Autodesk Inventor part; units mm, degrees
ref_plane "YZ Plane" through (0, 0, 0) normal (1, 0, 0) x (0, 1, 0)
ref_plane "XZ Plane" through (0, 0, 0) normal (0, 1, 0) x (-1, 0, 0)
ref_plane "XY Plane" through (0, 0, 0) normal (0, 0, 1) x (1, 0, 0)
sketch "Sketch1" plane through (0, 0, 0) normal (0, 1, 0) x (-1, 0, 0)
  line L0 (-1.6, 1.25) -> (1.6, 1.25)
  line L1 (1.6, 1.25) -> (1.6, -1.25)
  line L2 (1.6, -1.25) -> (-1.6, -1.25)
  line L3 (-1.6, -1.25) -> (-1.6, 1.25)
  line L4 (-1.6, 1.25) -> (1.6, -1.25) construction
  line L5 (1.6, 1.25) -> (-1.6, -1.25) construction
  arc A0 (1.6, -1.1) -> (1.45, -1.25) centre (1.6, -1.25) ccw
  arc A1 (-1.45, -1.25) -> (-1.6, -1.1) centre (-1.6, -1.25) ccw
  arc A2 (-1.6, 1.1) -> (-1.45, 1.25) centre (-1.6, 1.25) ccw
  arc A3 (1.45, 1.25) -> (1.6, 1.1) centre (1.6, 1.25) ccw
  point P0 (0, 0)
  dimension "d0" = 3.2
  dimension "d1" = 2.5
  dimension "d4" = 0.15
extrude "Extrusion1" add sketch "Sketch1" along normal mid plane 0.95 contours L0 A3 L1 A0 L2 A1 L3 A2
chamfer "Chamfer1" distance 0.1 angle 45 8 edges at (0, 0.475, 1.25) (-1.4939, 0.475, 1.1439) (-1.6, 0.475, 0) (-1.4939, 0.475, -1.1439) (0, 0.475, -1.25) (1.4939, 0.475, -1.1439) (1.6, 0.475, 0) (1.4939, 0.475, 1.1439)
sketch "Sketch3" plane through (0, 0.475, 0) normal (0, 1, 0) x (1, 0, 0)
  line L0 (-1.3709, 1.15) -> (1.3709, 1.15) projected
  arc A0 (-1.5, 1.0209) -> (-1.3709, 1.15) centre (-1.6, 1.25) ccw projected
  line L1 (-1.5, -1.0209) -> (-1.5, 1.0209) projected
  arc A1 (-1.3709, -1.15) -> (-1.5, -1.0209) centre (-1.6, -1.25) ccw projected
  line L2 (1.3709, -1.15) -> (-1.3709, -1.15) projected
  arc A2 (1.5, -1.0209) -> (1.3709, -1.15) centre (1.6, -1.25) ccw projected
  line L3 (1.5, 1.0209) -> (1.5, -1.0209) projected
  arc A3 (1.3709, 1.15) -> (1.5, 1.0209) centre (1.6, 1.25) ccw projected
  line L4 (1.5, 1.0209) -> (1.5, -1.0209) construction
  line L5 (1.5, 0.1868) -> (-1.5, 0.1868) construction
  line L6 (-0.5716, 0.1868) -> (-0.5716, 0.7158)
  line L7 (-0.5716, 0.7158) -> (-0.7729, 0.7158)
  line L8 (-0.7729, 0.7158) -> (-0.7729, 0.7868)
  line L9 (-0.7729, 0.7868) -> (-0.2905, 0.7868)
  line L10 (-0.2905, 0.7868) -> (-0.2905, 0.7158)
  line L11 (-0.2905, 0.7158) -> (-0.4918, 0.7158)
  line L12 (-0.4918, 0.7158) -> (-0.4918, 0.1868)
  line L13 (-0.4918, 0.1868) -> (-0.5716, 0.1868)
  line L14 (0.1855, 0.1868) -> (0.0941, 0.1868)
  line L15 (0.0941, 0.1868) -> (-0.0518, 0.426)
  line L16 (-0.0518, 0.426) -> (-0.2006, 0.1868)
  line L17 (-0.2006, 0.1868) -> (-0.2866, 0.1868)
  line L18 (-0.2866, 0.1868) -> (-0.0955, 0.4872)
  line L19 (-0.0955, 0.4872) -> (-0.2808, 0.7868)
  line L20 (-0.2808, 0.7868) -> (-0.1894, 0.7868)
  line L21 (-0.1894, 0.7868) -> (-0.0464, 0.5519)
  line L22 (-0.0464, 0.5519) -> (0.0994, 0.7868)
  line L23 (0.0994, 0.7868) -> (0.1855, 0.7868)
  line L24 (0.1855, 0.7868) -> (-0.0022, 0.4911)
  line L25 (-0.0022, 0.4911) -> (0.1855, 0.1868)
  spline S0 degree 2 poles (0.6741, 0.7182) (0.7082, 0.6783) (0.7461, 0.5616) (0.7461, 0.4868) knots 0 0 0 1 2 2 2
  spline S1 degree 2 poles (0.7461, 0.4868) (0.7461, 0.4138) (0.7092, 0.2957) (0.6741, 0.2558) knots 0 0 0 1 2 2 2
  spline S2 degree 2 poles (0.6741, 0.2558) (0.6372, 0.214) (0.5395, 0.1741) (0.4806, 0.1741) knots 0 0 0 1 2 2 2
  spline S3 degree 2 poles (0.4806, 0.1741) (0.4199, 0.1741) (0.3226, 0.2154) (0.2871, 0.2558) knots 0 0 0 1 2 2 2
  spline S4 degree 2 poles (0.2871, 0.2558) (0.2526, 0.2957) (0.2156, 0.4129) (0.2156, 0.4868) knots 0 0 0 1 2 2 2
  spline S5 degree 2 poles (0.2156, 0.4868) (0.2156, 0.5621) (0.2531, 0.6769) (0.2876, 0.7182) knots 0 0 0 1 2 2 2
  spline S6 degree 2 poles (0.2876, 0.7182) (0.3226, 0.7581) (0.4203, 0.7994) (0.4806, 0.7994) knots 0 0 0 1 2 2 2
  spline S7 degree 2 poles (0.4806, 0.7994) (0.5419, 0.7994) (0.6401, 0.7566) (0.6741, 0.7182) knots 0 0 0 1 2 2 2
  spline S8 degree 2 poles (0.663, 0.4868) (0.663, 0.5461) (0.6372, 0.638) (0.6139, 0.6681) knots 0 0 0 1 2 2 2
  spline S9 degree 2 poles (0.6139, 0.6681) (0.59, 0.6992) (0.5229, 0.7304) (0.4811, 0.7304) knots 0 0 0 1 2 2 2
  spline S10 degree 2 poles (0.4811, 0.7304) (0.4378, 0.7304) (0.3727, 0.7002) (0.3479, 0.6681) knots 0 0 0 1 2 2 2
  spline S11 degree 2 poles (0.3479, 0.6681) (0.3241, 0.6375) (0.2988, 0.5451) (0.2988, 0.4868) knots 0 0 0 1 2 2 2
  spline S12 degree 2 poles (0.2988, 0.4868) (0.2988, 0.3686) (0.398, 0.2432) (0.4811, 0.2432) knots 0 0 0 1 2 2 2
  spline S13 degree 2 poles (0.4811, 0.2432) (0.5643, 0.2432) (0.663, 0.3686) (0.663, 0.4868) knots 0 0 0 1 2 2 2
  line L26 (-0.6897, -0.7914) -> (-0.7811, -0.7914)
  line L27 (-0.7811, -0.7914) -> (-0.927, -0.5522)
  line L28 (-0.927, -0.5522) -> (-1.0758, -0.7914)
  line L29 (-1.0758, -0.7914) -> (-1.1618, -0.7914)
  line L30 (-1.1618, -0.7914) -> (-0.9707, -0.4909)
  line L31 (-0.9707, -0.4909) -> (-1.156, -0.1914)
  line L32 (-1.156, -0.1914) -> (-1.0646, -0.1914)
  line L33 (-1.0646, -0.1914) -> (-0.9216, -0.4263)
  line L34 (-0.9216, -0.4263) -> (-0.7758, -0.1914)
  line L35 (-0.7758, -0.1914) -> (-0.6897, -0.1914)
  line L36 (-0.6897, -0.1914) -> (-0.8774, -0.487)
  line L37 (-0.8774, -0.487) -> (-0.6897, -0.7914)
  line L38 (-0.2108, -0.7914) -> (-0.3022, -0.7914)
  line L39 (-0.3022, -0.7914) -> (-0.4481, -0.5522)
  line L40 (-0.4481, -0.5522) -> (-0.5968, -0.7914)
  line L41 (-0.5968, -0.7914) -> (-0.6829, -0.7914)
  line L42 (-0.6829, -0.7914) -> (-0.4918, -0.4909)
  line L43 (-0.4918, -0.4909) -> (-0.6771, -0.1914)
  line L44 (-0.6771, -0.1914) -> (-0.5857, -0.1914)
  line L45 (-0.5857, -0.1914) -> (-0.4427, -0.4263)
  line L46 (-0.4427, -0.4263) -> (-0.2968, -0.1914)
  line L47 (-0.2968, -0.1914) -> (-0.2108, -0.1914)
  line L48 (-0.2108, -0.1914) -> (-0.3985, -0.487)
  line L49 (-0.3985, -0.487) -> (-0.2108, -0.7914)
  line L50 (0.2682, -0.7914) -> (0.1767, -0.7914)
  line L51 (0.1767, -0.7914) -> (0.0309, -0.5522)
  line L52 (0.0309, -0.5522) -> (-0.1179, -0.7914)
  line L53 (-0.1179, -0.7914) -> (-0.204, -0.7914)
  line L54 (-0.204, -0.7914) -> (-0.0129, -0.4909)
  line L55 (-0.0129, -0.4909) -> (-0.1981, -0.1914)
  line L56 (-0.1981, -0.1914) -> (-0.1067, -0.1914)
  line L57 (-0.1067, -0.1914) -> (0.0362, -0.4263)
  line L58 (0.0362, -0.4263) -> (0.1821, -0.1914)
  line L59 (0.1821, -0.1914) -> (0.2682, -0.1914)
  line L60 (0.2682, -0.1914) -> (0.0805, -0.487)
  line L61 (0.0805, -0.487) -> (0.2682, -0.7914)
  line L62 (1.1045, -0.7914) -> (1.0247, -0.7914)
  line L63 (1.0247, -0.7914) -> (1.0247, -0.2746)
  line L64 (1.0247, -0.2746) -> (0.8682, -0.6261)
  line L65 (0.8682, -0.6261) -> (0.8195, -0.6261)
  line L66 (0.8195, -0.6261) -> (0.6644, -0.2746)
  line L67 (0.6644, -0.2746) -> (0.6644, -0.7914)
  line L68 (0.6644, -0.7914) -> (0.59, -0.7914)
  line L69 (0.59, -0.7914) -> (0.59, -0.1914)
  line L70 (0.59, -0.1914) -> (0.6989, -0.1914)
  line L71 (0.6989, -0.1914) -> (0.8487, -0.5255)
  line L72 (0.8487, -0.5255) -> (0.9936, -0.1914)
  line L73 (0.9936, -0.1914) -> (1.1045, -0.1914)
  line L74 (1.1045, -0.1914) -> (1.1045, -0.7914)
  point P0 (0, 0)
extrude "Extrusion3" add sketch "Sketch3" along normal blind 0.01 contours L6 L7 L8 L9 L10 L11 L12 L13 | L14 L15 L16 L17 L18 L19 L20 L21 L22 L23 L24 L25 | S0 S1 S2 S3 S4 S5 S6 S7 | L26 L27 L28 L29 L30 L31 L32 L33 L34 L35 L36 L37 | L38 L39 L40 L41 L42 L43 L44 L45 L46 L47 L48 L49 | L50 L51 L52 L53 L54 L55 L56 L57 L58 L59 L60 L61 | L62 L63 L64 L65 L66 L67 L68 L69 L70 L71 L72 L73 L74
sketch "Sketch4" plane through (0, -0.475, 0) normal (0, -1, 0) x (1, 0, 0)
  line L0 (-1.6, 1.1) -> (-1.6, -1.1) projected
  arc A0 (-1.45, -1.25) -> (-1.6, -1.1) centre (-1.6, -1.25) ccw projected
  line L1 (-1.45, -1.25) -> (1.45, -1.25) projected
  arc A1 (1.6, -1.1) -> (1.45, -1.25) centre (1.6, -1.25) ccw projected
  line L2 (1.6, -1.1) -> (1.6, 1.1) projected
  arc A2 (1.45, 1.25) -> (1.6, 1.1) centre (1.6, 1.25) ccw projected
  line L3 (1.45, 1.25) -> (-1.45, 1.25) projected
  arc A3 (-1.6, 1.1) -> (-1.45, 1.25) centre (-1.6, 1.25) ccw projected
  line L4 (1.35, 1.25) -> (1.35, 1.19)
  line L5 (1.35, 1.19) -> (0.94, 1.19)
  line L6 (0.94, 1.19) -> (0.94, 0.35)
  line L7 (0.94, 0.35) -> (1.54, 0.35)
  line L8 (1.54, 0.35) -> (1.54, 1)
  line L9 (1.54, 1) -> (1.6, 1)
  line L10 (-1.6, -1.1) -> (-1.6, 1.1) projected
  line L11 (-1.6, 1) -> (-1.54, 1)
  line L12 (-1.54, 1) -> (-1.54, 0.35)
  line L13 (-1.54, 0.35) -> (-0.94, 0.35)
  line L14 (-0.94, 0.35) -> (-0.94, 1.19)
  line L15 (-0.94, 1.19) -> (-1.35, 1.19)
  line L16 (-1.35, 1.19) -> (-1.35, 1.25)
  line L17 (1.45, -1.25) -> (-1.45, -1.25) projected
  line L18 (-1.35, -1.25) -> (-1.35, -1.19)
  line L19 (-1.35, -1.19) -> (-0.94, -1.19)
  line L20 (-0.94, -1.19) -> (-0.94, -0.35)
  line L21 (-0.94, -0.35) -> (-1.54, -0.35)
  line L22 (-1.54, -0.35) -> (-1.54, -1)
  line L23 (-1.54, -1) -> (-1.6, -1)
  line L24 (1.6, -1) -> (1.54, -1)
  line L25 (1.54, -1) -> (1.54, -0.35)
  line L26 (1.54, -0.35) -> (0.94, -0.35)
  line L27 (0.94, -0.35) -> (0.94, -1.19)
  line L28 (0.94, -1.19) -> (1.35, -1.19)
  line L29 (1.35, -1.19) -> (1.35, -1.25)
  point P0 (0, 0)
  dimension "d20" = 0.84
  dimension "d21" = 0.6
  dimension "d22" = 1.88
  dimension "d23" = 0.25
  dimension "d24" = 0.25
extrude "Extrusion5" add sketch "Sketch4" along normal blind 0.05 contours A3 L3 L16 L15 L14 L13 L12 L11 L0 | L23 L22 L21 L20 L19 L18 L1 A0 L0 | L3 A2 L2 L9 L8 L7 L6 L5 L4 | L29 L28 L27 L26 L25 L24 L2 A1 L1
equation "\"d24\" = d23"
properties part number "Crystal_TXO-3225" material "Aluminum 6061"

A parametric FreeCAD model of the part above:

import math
import FreeCAD as App
import Part
import Sketcher
Q = App.Units.Quantity


def edges_at(feature, points):
    """Names of the edges that pass closest to the given points."""
    edges = feature.Shape.Edges
    near = lambda p: min(range(len(edges)), key=lambda i: edges[i].distToShape(Part.Vertex(*p))[0])
    return sorted({f"Edge{near(p) + 1}" for p in points})


def add_polygon(sketch, points):
    """Adds a closed chain of lines whose ends are joined by coincident constraints."""
    first, n = sketch.GeometryCount, len(points)
    for a, b in zip(points, points[1:] + points[:1]):
        sketch.addGeometry(Part.LineSegment(App.Vector(*a, 0), App.Vector(*b, 0)), False)
    for i in range(n):
        sketch.addConstraint(Sketcher.Constraint("Coincident", first + i, 2, first + (i + 1) % n, 1))

doc = App.newDocument("Part")
params = doc.addObject("Spreadsheet::Sheet", "Params")
for row, (alias, value) in enumerate([
    ("sketch1_radius", "0.15 mm"),
    ("pad1_length", "0.95 mm"),
    ("chamfer_size", "0.1 mm"),
    ("sketch2_height", "0.6 mm"),
    ("pad2_length", "0.01 mm"),
    ("sketch3_width", "0.6 mm"),
    ("sketch3_height", "0.84 mm"),
    ("sketch3_radius", "0.15 mm"),
    ("sketch3_width2", "0.06 mm"),
    ("pad3_length", "0.05 mm"),
], start=1):
    params.set(f"A{row}", alias)
    params.set(f"B{row}", "=" + value)
    params.setAlias(f"B{row}", alias)

body = doc.addObject("PartDesign::Body", "Body")

# Sketch on XZ plane
sketch1 = body.newObject("Sketcher::SketchObject", "Sketch")
sketch1.AttachmentSupport = (doc.getObject("XZ_Plane"), [""])
sketch1.MapMode = "FlatFace"
sketch1.addGeometry([
    Part.LineSegment(App.Vector(-1.45, 1.25, 0), App.Vector(1.45, 1.25, 0)),  # 0
    Part.ArcOfCircle(Part.Circle(App.Vector(1.6, 1.25, 0), App.Vector(0, 0, 1), 0.15), math.radians(180), math.radians(270)),  # 1
    Part.LineSegment(App.Vector(1.6, 1.1, 0), App.Vector(1.6, -1.1, 0)),  # 2
    Part.ArcOfCircle(Part.Circle(App.Vector(1.6, -1.25, 0), App.Vector(0, 0, 1), 0.15), math.radians(90), math.radians(180)),  # 3
    Part.LineSegment(App.Vector(1.45, -1.25, 0), App.Vector(-1.45, -1.25, 0)),  # 4
    Part.ArcOfCircle(Part.Circle(App.Vector(-1.6, -1.25, 0), App.Vector(0, 0, 1), 0.15), math.radians(0), math.radians(90)),  # 5
    Part.LineSegment(App.Vector(-1.6, -1.1, 0), App.Vector(-1.6, 1.1, 0)),  # 6
    Part.ArcOfCircle(Part.Circle(App.Vector(-1.6, 1.25, 0), App.Vector(0, 0, 1), 0.15), math.radians(-90), math.radians(0)),  # 7
], False)
sketch1.addConstraint([
    Sketcher.Constraint("Coincident", 0, 2, 1, 1),
    Sketcher.Constraint("Coincident", 1, 2, 2, 1),
    Sketcher.Constraint("Coincident", 2, 2, 3, 1),
    Sketcher.Constraint("Coincident", 3, 2, 4, 1),
    Sketcher.Constraint("Coincident", 4, 2, 5, 1),
    Sketcher.Constraint("Coincident", 5, 2, 6, 1),
    Sketcher.Constraint("Coincident", 6, 2, 7, 1),
    Sketcher.Constraint("Coincident", 7, 2, 0, 1),
    Sketcher.Constraint("Horizontal", 0),
    Sketcher.Constraint("Vertical", 2),
    Sketcher.Constraint("Horizontal", 4),
    Sketcher.Constraint("Vertical", 6),
    Sketcher.Constraint("Equal", 1, 3),
    Sketcher.Constraint("Equal", 3, 5),
    Sketcher.Constraint("Equal", 5, 7),
    Sketcher.Constraint("Symmetric", 1, 3, 5, 3, -1, 1),
    Sketcher.Constraint("Symmetric", 3, 3, 7, 3, -1, 1),
    Sketcher.Constraint("Symmetric", 3, 3, 5, 3, -2),
    Sketcher.Constraint("Horizontal", 7, 3, 0, 2),
    Sketcher.Constraint("Horizontal", 5, 3, 3, 2),
    Sketcher.Constraint("Vertical", 3, 3, 1, 2),
    Sketcher.Constraint("Vertical", 7, 3, 5, 2),
    Sketcher.Constraint("Radius", 1, Q("0.15 mm")),
    Sketcher.Constraint("DistanceY", 3, 3, 1, 3, Q("2.5 mm")),
    Sketcher.Constraint("DistanceX", 5, 3, 3, 3, Q("3.2 mm")),
])
sketch1.setExpression("Constraints[22]", "Params.sketch1_radius")
pad1 = body.newObject("PartDesign::Pad", "Pad")
pad1.Profile = sketch1
pad1.setExpression("Length", "Params.pad1_length")
pad1.Midplane = True
doc.recompute()

chamfer = body.newObject("PartDesign::Chamfer", "Chamfer")
chamfer.Base = (pad1, edges_at(pad1, [
    (0, 0.475, 1.25),
    (-1.494, 0.475, 1.144),
    (-1.6, 0.475, 0),
    (-1.494, 0.475, -1.144),
    (0, 0.475, -1.25),
    (1.494, 0.475, -1.144),
    (1.6, 0.475, 0),
    (1.494, 0.475, 1.144),
]))
chamfer.setExpression("Size", "Params.chamfer_size")

# Sketch on XZ plane
sketch2 = body.newObject("Sketcher::SketchObject", "Sketch001")
sketch2.AttachmentSupport = (doc.getObject("XZ_Plane"), [""])
sketch2.MapMode = "FlatFace"
sketch2.AttachmentOffset = App.Placement(App.Vector(0, 0, -0.475), App.Rotation())
add_polygon(sketch2, [(-0.5716, -0.7158), (-0.5716, -0.1868), (-0.4918, -0.1868), (-0.4918, -0.7158), (-0.2905, -0.7158), (-0.2905, -0.7868), (-0.7729, -0.7868), (-0.7729, -0.7158)])  # lines 0-7
add_polygon(sketch2, [(0.0941, -0.1868), (0.1855, -0.1868), (-0.0022, -0.4911), (0.1855, -0.7868), (0.0994, -0.7868), (-0.0464, -0.5519), (-0.1894, -0.7868), (-0.2808, -0.7868), (-0.0955, -0.4872), (-0.2866, -0.1868), (-0.2006, -0.1868), (-0.0518, -0.426)])  # lines 8-19
sketch2.addGeometry(Part.BSplineCurve([App.Vector(0.6741, -0.7182, 0), App.Vector(0.7082, -0.6783, 0), App.Vector(0.7461, -0.5616, 0), App.Vector(0.7461, -0.4868, 0)], [3, 1, 3], [0, 1, 2], False, 2, [1, 1, 1, 1], False), False)  # 20
sketch2.addGeometry(Part.BSplineCurve([App.Vector(0.4806, -0.7994, 0), App.Vector(0.5419, -0.7994, 0), App.Vector(0.6401, -0.7566, 0), App.Vector(0.6741, -0.7182, 0)], [3, 1, 3], [0, 1, 2], False, 2, [1, 1, 1, 1], False), False)  # 21
sketch2.addGeometry(Part.BSplineCurve([App.Vector(0.2876, -0.7182, 0), App.Vector(0.3226, -0.7581, 0), App.Vector(0.4203, -0.7994, 0), App.Vector(0.4806, -0.7994, 0)], [3, 1, 3], [0, 1, 2], False, 2, [1, 1, 1, 1], False), False)  # 22
sketch2.addGeometry(Part.BSplineCurve([App.Vector(0.2156, -0.4868, 0), App.Vector(0.2156, -0.5621, 0), App.Vector(0.2531, -0.6769, 0), App.Vector(0.2876, -0.7182, 0)], [3, 1, 3], [0, 1, 2], False, 2, [1, 1, 1, 1], False), False)  # 23
sketch2.addGeometry(Part.BSplineCurve([App.Vector(0.2871, -0.2558, 0), App.Vector(0.2526, -0.2957, 0), App.Vector(0.2156, -0.4129, 0), App.Vector(0.2156, -0.4868, 0)], [3, 1, 3], [0, 1, 2], False, 2, [1, 1, 1, 1], False), False)  # 24
sketch2.addGeometry(Part.BSplineCurve([App.Vector(0.4806, -0.1741, 0), App.Vector(0.4199, -0.1741, 0), App.Vector(0.3226, -0.2154, 0), App.Vector(0.2871, -0.2558, 0)], [3, 1, 3], [0, 1, 2], False, 2, [1, 1, 1, 1], False), False)  # 25
sketch2.addGeometry(Part.BSplineCurve([App.Vector(0.6741, -0.2558, 0), App.Vector(0.6372, -0.214, 0), App.Vector(0.5395, -0.1741, 0), App.Vector(0.4806, -0.1741, 0)], [3, 1, 3], [0, 1, 2], False, 2, [1, 1, 1, 1], False), False)  # 26
sketch2.addGeometry(Part.BSplineCurve([App.Vector(0.7461, -0.4868, 0), App.Vector(0.7461, -0.4138, 0), App.Vector(0.7092, -0.2957, 0), App.Vector(0.6741, -0.2558, 0)], [3, 1, 3], [0, 1, 2], False, 2, [1, 1, 1, 1], False), False)  # 27
sketch2.addGeometry(Part.BSplineCurve([App.Vector(0.663, -0.4868, 0), App.Vector(0.663, -0.5461, 0), App.Vector(0.6372, -0.638, 0), App.Vector(0.6139, -0.6681, 0)], [3, 1, 3], [0, 1, 2], False, 2, [1, 1, 1, 1], False), False)  # 28
sketch2.addGeometry(Part.BSplineCurve([App.Vector(0.4811, -0.2432, 0), App.Vector(0.5643, -0.2432, 0), App.Vector(0.663, -0.3686, 0), App.Vector(0.663, -0.4868, 0)], [3, 1, 3], [0, 1, 2], False, 2, [1, 1, 1, 1], False), False)  # 29
sketch2.addGeometry(Part.BSplineCurve([App.Vector(0.2988, -0.4868, 0), App.Vector(0.2988, -0.3686, 0), App.Vector(0.398, -0.2432, 0), App.Vector(0.4811, -0.2432, 0)], [3, 1, 3], [0, 1, 2], False, 2, [1, 1, 1, 1], False), False)  # 30
sketch2.addGeometry(Part.BSplineCurve([App.Vector(0.3479, -0.6681, 0), App.Vector(0.3241, -0.6375, 0), App.Vector(0.2988, -0.5451, 0), App.Vector(0.2988, -0.4868, 0)], [3, 1, 3], [0, 1, 2], False, 2, [1, 1, 1, 1], False), False)  # 31
sketch2.addGeometry(Part.BSplineCurve([App.Vector(0.4811, -0.7304, 0), App.Vector(0.4378, -0.7304, 0), App.Vector(0.3727, -0.7002, 0), App.Vector(0.3479, -0.6681, 0)], [3, 1, 3], [0, 1, 2], False, 2, [1, 1, 1, 1], False), False)  # 32
sketch2.addGeometry(Part.BSplineCurve([App.Vector(0.6139, -0.6681, 0), App.Vector(0.59, -0.6992, 0), App.Vector(0.5229, -0.7304, 0), App.Vector(0.4811, -0.7304, 0)], [3, 1, 3], [0, 1, 2], False, 2, [1, 1, 1, 1], False), False)  # 33
add_polygon(sketch2, [(-0.7811, 0.7914), (-0.6897, 0.7914), (-0.8774, 0.487), (-0.6897, 0.1914), (-0.7758, 0.1914), (-0.9216, 0.4263), (-1.0646, 0.1914), (-1.156, 0.1914), (-0.9707, 0.4909), (-1.1618, 0.7914), (-1.0758, 0.7914), (-0.927, 0.5522)])  # lines 34-45
add_polygon(sketch2, [(-0.3022, 0.7914), (-0.2108, 0.7914), (-0.3985, 0.487), (-0.2108, 0.1914), (-0.2968, 0.1914), (-0.4427, 0.4263), (-0.5857, 0.1914), (-0.6771, 0.1914), (-0.4918, 0.4909), (-0.6829, 0.7914), (-0.5968, 0.7914), (-0.4481, 0.5522)])  # lines 46-57
add_polygon(sketch2, [(0.1767, 0.7914), (0.2682, 0.7914), (0.0805, 0.487), (0.2682, 0.1914), (0.1821, 0.1914), (0.0362, 0.4263), (-0.1067, 0.1914), (-0.1981, 0.1914), (-0.0129, 0.4909), (-0.204, 0.7914), (-0.1179, 0.7914), (0.0309, 0.5522)])  # lines 58-69
add_polygon(sketch2, [(1.0247, 0.7914), (1.1045, 0.7914), (1.1045, 0.1914), (0.9936, 0.1914), (0.8487, 0.5255), (0.6989, 0.1914), (0.59, 0.1914), (0.59, 0.7914), (0.6644, 0.7914), (0.6644, 0.2746), (0.8195, 0.6261), (0.8682, 0.6261), (1.0247, 0.2746)])  # lines 70-82
sketch2.addConstraint([
    Sketcher.Constraint("Block", 20),
    Sketcher.Constraint("Block", 21),
    Sketcher.Constraint("Block", 22),
    Sketcher.Constraint("Block", 23),
    Sketcher.Constraint("Block", 24),
    Sketcher.Constraint("Block", 25),
    Sketcher.Constraint("Block", 26),
    Sketcher.Constraint("Block", 27),
    Sketcher.Constraint("Block", 28),
    Sketcher.Constraint("Block", 29),
    Sketcher.Constraint("Block", 30),
    Sketcher.Constraint("Block", 31),
    Sketcher.Constraint("Block", 32),
    Sketcher.Constraint("Block", 33),
    Sketcher.Constraint("Vertical", 0),
    Sketcher.Constraint("Horizontal", 1),
    Sketcher.Constraint("Vertical", 2),
    Sketcher.Constraint("Horizontal", 3),
    Sketcher.Constraint("Vertical", 4),
    Sketcher.Constraint("Horizontal", 5),
    Sketcher.Constraint("Vertical", 6),
    Sketcher.Constraint("Horizontal", 7),
    Sketcher.Constraint("Horizontal", 8),
    Sketcher.Constraint("Horizontal", 11),
    Sketcher.Constraint("Horizontal", 14),
    Sketcher.Constraint("Horizontal", 17),
    Sketcher.Constraint("Horizontal", 34),
    Sketcher.Constraint("Horizontal", 37),
    Sketcher.Constraint("Horizontal", 40),
    Sketcher.Constraint("Horizontal", 43),
    Sketcher.Constraint("Horizontal", 46),
    Sketcher.Constraint("Horizontal", 49),
    Sketcher.Constraint("Horizontal", 52),
    Sketcher.Constraint("Horizontal", 55),
    Sketcher.Constraint("Horizontal", 58),
    Sketcher.Constraint("Horizontal", 61),
    Sketcher.Constraint("Horizontal", 64),
    Sketcher.Constraint("Horizontal", 67),
    Sketcher.Constraint("Horizontal", 70),
    Sketcher.Constraint("Vertical", 71),
    Sketcher.Constraint("Horizontal", 72),
    Sketcher.Constraint("Horizontal", 75),
    Sketcher.Constraint("Vertical", 76),
    Sketcher.Constraint("Horizontal", 77),
    Sketcher.Constraint("Vertical", 78),
    Sketcher.Constraint("Horizontal", 80),
    Sketcher.Constraint("Vertical", 82),
    Sketcher.Constraint("Parallel", 9, 35),
    Sketcher.Constraint("Parallel", 10, 36),
    Sketcher.Constraint("Parallel", 12, 38),
    Sketcher.Constraint("Parallel", 13, 39),
    Sketcher.Constraint("Parallel", 15, 41),
    Sketcher.Constraint("Parallel", 16, 42),
    Sketcher.Constraint("Parallel", 18, 44),
    Sketcher.Constraint("Parallel", 19, 45),
    Sketcher.Constraint("Parallel", 35, 47),
    Sketcher.Constraint("Parallel", 36, 48),
    Sketcher.Constraint("Parallel", 38, 50),
    Sketcher.Constraint("Parallel", 39, 51),
    Sketcher.Constraint("Parallel", 41, 53),
    Sketcher.Constraint("Parallel", 42, 54),
    Sketcher.Constraint("Parallel", 50, 56),
    Sketcher.Constraint("Parallel", 45, 57),
    Sketcher.Constraint("Parallel", 47, 59),
    Sketcher.Constraint("Parallel", 48, 60),
    Sketcher.Constraint("Parallel", 56, 62),
    Sketcher.Constraint("Parallel", 51, 63),
    Sketcher.Constraint("Parallel", 53, 65),
    Sketcher.Constraint("Parallel", 54, 66),
    Sketcher.Constraint("Parallel", 56, 68),
    Sketcher.Constraint("Parallel", 57, 69),
    Sketcher.Constraint("Horizontal", 3, 2, 6, 2),
    Sketcher.Constraint("Horizontal", 1, 2, 8, 2),
    Sketcher.Constraint("Horizontal", 5, 2, 10, 2),
    Sketcher.Constraint("Horizontal", 11, 2, 13, 2),
    Sketcher.Constraint("Horizontal", 8, 2, 16, 2),
    Sketcher.Constraint("Horizontal", 37, 2, 39, 2),
    Sketcher.Constraint("Horizontal", 34, 2, 42, 2),
    Sketcher.Constraint("Horizontal", 45, 2, 46, 2),
    Sketcher.Constraint("Horizontal", 35, 2, 47, 2),
    Sketcher.Constraint("Horizontal", 40, 2, 48, 2),
    Sketcher.Constraint("Horizontal", 38, 2, 50, 2),
    Sketcher.Constraint("Horizontal", 49, 2, 51, 2),
    Sketcher.Constraint("Horizontal", 41, 2, 53, 2),
    Sketcher.Constraint("Horizontal", 46, 2, 54, 2),
    Sketcher.Constraint("Horizontal", 44, 2, 56, 2),
    Sketcher.Constraint("Horizontal", 57, 2, 58, 2),
    Sketcher.Constraint("Horizontal", 47, 2, 59, 2),
    Sketcher.Constraint("Horizontal", 52, 2, 60, 2),
    Sketcher.Constraint("Horizontal", 50, 2, 62, 2),
    Sketcher.Constraint("Horizontal", 61, 2, 63, 2),
    Sketcher.Constraint("Horizontal", 53, 2, 65, 2),
    Sketcher.Constraint("Horizontal", 58, 2, 66, 2),
    Sketcher.Constraint("Horizontal", 56, 2, 68, 2),
    Sketcher.Constraint("Horizontal", 69, 2, 70, 2),
    Sketcher.Constraint("Horizontal", 64, 2, 71, 2),
    Sketcher.Constraint("Horizontal", 72, 2, 74, 2),
    Sketcher.Constraint("Horizontal", 70, 2, 76, 2),
    Sketcher.Constraint("Horizontal", 78, 2, 81, 2),
    Sketcher.Constraint("Vertical", 8, 2, 10, 2),
    Sketcher.Constraint("Vertical", 34, 2, 36, 2),
    Sketcher.Constraint("Vertical", 2, 2, 53, 2),
    Sketcher.Constraint("Equal", 3, 7),
    Sketcher.Constraint("Equal", 8, 14),
    Sketcher.Constraint("Equal", 11, 17),
    Sketcher.Constraint("Equal", 14, 34),
    Sketcher.Constraint("Equal", 17, 37),
    Sketcher.Constraint("Equal", 34, 40),
    Sketcher.Constraint("Equal", 37, 43),
    Sketcher.Constraint("Equal", 40, 46),
    Sketcher.Constraint("Equal", 43, 49),
    Sketcher.Constraint("Equal", 46, 52),
    Sketcher.Constraint("Equal", 49, 55),
    Sketcher.Constraint("Equal", 52, 58),
    Sketcher.Constraint("Equal", 55, 61),
    Sketcher.Constraint("Equal", 58, 64),
    Sketcher.Constraint("Equal", 1, 70),
    Sketcher.Constraint("Equal", 9, 35),
    Sketcher.Constraint("Equal", 12, 38),
    Sketcher.Constraint("Equal", 15, 41),
    Sketcher.Constraint("Angle", 81, Q("-65.9997 deg")),
    Sketcher.Constraint("DistanceY", 71, 2, 71, 1, Q("0.6 mm")),
    Sketcher.Constraint("Angle", 19, Q("58.619 deg")),
    Sketcher.Constraint("Angle", 35, Q("-121.659 deg")),
    Sketcher.Constraint("Angle", 65, Q("58.2688 deg")),
    Sketcher.Constraint("Angle", 74, Q("-114.15 deg")),
    Sketcher.Constraint("Angle", 79, Q("66.1904 deg")),
    Sketcher.Constraint("DistanceX", 11, 2, 11, 1, Q("0.086 mm")),
    Sketcher.Constraint("DistanceX", 72, 2, 72, 1, Q("0.111 mm")),
    Sketcher.Constraint("DistanceX", 75, 2, 75, 1, Q("0.109 mm")),
    Sketcher.Constraint("DistanceY", 0, 1, 0, 2, Q("0.529 mm")),
    Sketcher.Constraint("DistanceX", -1, 1, 75, 2, Q("0.59 mm")),
    Sketcher.Constraint("Distance", 13, Q("0.275 mm")),
    Sketcher.Constraint("Distance", 16, Q("0.356 mm")),
    Sketcher.Constraint("DistanceX", 1, 1, 1, 2, Q("0.0798 mm")),
    Sketcher.Constraint("DistanceX", 3, 1, 3, 2, Q("0.2013 mm")),
    Sketcher.Constraint("DistanceX", 8, 1, 8, 2, Q("0.0914 mm")),
    Sketcher.Constraint("DistanceX", 77, 1, 77, 2, Q("0.0744 mm")),
    Sketcher.Constraint("DistanceX", 80, 1, 80, 2, Q("0.0487 mm")),
    Sketcher.Constraint("DistanceY", 78, 2, 78, 1, Q("0.5168 mm")),
    Sketcher.Constraint("DistanceX", 5, 2, -1, 1, Q("0.773 mm")),
    Sketcher.Constraint("DistanceY", 9, 2, -1, 1, Q("0.491 mm")),
    Sketcher.Constraint("DistanceY", 12, 2, -1, 1, Q("0.552 mm")),
    Sketcher.Constraint("DistanceY", 18, 2, -1, 1, Q("0.426 mm")),
    Sketcher.Constraint("DistanceX", -1, 1, 19, 2, Q("0.094 mm")),
    Sketcher.Constraint("DistanceY", -1, 1, 35, 2, Q("0.487 mm")),
    Sketcher.Constraint("DistanceX", 40, 2, -1, 1, Q("1.156 mm")),
    Sketcher.Constraint("DistanceY", -1, 1, 41, 2, Q("0.491 mm")),
    Sketcher.Constraint("DistanceX", 44, 2, -1, 1, Q("0.927 mm")),
    Sketcher.Constraint("DistanceX", -1, 1, 61, 2, Q("0.182 mm")),
    Sketcher.Constraint("DistanceY", -1, 1, 79, 2, Q("0.626 mm")),
    Sketcher.Constraint("Distance", 73, Q("0.3642 mm")),
])
sketch2.setExpression("Constraints[190]", "Params.sketch2_height")
pad2 = body.newObject("PartDesign::Pad", "Pad001")
pad2.Profile = sketch2
pad2.setExpression("Length", "Params.pad2_length")
pad2.Reversed = True

# Sketch on XZ plane
sketch3 = body.newObject("Sketcher::SketchObject", "Sketch002")
sketch3.AttachmentSupport = (doc.getObject("XZ_Plane"), [""])
sketch3.MapMode = "FlatFace"
sketch3.AttachmentOffset = App.Placement(App.Vector(0, 0, 0.475), App.Rotation())
sketch3.addGeometry([
    Part.ArcOfCircle(Part.Circle(App.Vector(-1.6, 1.25, 0), App.Vector(0, 0, 1), 0.15), math.radians(-90), math.radians(0)),  # 0
    Part.LineSegment(App.Vector(-1.6, 1.1, 0), App.Vector(-1.6, 1, 0)),  # 1
    Part.LineSegment(App.Vector(-1.6, 1, 0), App.Vector(-1.54, 1, 0)),  # 2
    Part.LineSegment(App.Vector(-1.54, 1, 0), App.Vector(-1.54, 0.35, 0)),  # 3
    Part.LineSegment(App.Vector(-1.54, 0.35, 0), App.Vector(-0.94, 0.35, 0)),  # 4
    Part.LineSegment(App.Vector(-0.94, 0.35, 0), App.Vector(-0.94, 1.19, 0)),  # 5
    Part.LineSegment(App.Vector(-0.94, 1.19, 0), App.Vector(-1.35, 1.19, 0)),  # 6
    Part.LineSegment(App.Vector(-1.35, 1.19, 0), App.Vector(-1.35, 1.25, 0)),  # 7
    Part.LineSegment(App.Vector(-1.35, 1.25, 0), App.Vector(-1.45, 1.25, 0)),  # 8
    Part.LineSegment(App.Vector(-1.54, -1, 0), App.Vector(-1.6, -1, 0)),  # 9
    Part.LineSegment(App.Vector(-1.6, -1, 0), App.Vector(-1.6, -1.1, 0)),  # 10
    Part.ArcOfCircle(Part.Circle(App.Vector(-1.6, -1.25, 0), App.Vector(0, 0, 1), 0.15), math.radians(0), math.radians(90)),  # 11
    Part.LineSegment(App.Vector(-1.45, -1.25, 0), App.Vector(-1.35, -1.25, 0)),  # 12
    Part.LineSegment(App.Vector(-1.35, -1.25, 0), App.Vector(-1.35, -1.19, 0)),  # 13
    Part.LineSegment(App.Vector(-1.35, -1.19, 0), App.Vector(-0.94, -1.19, 0)),  # 14
    Part.LineSegment(App.Vector(-0.94, -1.19, 0), App.Vector(-0.94, -0.35, 0)),  # 15
    Part.LineSegment(App.Vector(-0.94, -0.35, 0), App.Vector(-1.54, -0.35, 0)),  # 16
    Part.LineSegment(App.Vector(-1.54, -0.35, 0), App.Vector(-1.54, -1, 0)),  # 17
    Part.LineSegment(App.Vector(1.45, 1.25, 0), App.Vector(1.35, 1.25, 0)),  # 18
    Part.LineSegment(App.Vector(1.35, 1.25, 0), App.Vector(1.35, 1.19, 0)),  # 19
    Part.LineSegment(App.Vector(1.35, 1.19, 0), App.Vector(0.94, 1.19, 0)),  # 20
    Part.LineSegment(App.Vector(0.94, 1.19, 0), App.Vector(0.94, 0.35, 0)),  # 21
    Part.LineSegment(App.Vector(0.94, 0.35, 0), App.Vector(1.54, 0.35, 0)),  # 22
    Part.LineSegment(App.Vector(1.54, 0.35, 0), App.Vector(1.54, 1, 0)),  # 23
    Part.LineSegment(App.Vector(1.54, 1, 0), App.Vector(1.6, 1, 0)),  # 24
    Part.LineSegment(App.Vector(1.6, 1, 0), App.Vector(1.6, 1.1, 0)),  # 25
    Part.ArcOfCircle(Part.Circle(App.Vector(1.6, 1.25, 0), App.Vector(0, 0, 1), 0.15), math.radians(180), math.radians(270)),  # 26
    Part.LineSegment(App.Vector(1.35, -1.19, 0), App.Vector(1.35, -1.25, 0)),  # 27
    Part.LineSegment(App.Vector(1.35, -1.25, 0), App.Vector(1.45, -1.25, 0)),  # 28
    Part.ArcOfCircle(Part.Circle(App.Vector(1.6, -1.25, 0), App.Vector(0, 0, 1), 0.15), math.radians(90), math.radians(180)),  # 29
    Part.LineSegment(App.Vector(1.6, -1.1, 0), App.Vector(1.6, -1, 0)),  # 30
    Part.LineSegment(App.Vector(1.6, -1, 0), App.Vector(1.54, -1, 0)),  # 31
    Part.LineSegment(App.Vector(1.54, -1, 0), App.Vector(1.54, -0.35, 0)),  # 32
    Part.LineSegment(App.Vector(1.54, -0.35, 0), App.Vector(0.94, -0.35, 0)),  # 33
    Part.LineSegment(App.Vector(0.94, -0.35, 0), App.Vector(0.94, -1.19, 0)),  # 34
    Part.LineSegment(App.Vector(0.94, -1.19, 0), App.Vector(1.35, -1.19, 0)),  # 35
], False)
sketch3.addConstraint([
    Sketcher.Constraint("Coincident", 0, 1, 1, 1),
    Sketcher.Constraint("Coincident", 1, 2, 2, 1),
    Sketcher.Constraint("Coincident", 2, 2, 3, 1),
    Sketcher.Constraint("Coincident", 3, 2, 4, 1),
    Sketcher.Constraint("Coincident", 4, 2, 5, 1),
    Sketcher.Constraint("Coincident", 5, 2, 6, 1),
    Sketcher.Constraint("Coincident", 6, 2, 7, 1),
    Sketcher.Constraint("Coincident", 7, 2, 8, 1),
    Sketcher.Constraint("Coincident", 8, 2, 0, 2),
    Sketcher.Constraint("Coincident", 9, 2, 10, 1),
    Sketcher.Constraint("Coincident", 10, 2, 11, 2),
    Sketcher.Constraint("Coincident", 11, 1, 12, 1),
    Sketcher.Constraint("Coincident", 12, 2, 13, 1),
    Sketcher.Constraint("Coincident", 13, 2, 14, 1),
    Sketcher.Constraint("Coincident", 14, 2, 15, 1),
    Sketcher.Constraint("Coincident", 15, 2, 16, 1),
    Sketcher.Constraint("Coincident", 16, 2, 17, 1),
    Sketcher.Constraint("Coincident", 17, 2, 9, 1),
    Sketcher.Constraint("Coincident", 18, 2, 19, 1),
    Sketcher.Constraint("Coincident", 19, 2, 20, 1),
    Sketcher.Constraint("Coincident", 20, 2, 21, 1),
    Sketcher.Constraint("Coincident", 21, 2, 22, 1),
    Sketcher.Constraint("Coincident", 22, 2, 23, 1),
    Sketcher.Constraint("Coincident", 23, 2, 24, 1),
    Sketcher.Constraint("Coincident", 24, 2, 25, 1),
    Sketcher.Constraint("Coincident", 25, 2, 26, 2),
    Sketcher.Constraint("Coincident", 26, 1, 18, 1),
    Sketcher.Constraint("Coincident", 27, 2, 28, 1),
    Sketcher.Constraint("Coincident", 28, 2, 29, 2),
    Sketcher.Constraint("Coincident", 29, 1, 30, 1),
    Sketcher.Constraint("Coincident", 30, 2, 31, 1),
    Sketcher.Constraint("Coincident", 31, 2, 32, 1),
    Sketcher.Constraint("Coincident", 32, 2, 33, 1),
    Sketcher.Constraint("Coincident", 33, 2, 34, 1),
    Sketcher.Constraint("Coincident", 34, 2, 35, 1),
    Sketcher.Constraint("Coincident", 35, 2, 27, 1),
    Sketcher.Constraint("Vertical", 1),
    Sketcher.Constraint("Horizontal", 2),
    Sketcher.Constraint("Vertical", 3),
    Sketcher.Constraint("Horizontal", 4),
    Sketcher.Constraint("Vertical", 5),
    Sketcher.Constraint("Horizontal", 6),
    Sketcher.Constraint("Vertical", 7),
    Sketcher.Constraint("Horizontal", 8),
    Sketcher.Constraint("Horizontal", 9),
    Sketcher.Constraint("Vertical", 10),
    Sketcher.Constraint("Horizontal", 12),
    Sketcher.Constraint("Vertical", 13),
    Sketcher.Constraint("Horizontal", 14),
    Sketcher.Constraint("Vertical", 15),
    Sketcher.Constraint("Horizontal", 16),
    Sketcher.Constraint("Vertical", 17),
    Sketcher.Constraint("Horizontal", 18),
    Sketcher.Constraint("Vertical", 19),
    Sketcher.Constraint("Horizontal", 20),
    Sketcher.Constraint("Vertical", 21),
    Sketcher.Constraint("Horizontal", 22),
    Sketcher.Constraint("Vertical", 23),
    Sketcher.Constraint("Horizontal", 24),
    Sketcher.Constraint("Vertical", 25),
    Sketcher.Constraint("Vertical", 27),
    Sketcher.Constraint("Horizontal", 28),
    Sketcher.Constraint("Vertical", 30),
    Sketcher.Constraint("Horizontal", 31),
    Sketcher.Constraint("Vertical", 32),
    Sketcher.Constraint("Horizontal", 33),
    Sketcher.Constraint("Vertical", 34),
    Sketcher.Constraint("Horizontal", 35),
    Sketcher.Constraint("Equal", 0, 11),
    Sketcher.Constraint("Equal", 11, 26),
    Sketcher.Constraint("Equal", 26, 29),
    Sketcher.Constraint("Symmetric", 11, 3, 26, 3, -1, 1),
    Sketcher.Constraint("Symmetric", 0, 3, 29, 3, -1, 1),
    Sketcher.Constraint("Symmetric", 12, 2, 18, 2, -1, 1),
    Sketcher.Constraint("Symmetric", 14, 2, 20, 2, -1, 1),
    Sketcher.Constraint("Symmetric", 16, 2, 22, 2, -1, 1),
    Sketcher.Constraint("Symmetric", 9, 2, 24, 2, -1, 1),
    Sketcher.Constraint("Symmetric", 7, 2, 27, 2, -1, 1),
    Sketcher.Constraint("Symmetric", 1, 2, 30, 2, -1, 1),
    Sketcher.Constraint("Symmetric", 3, 2, 32, 2, -1, 1),
    Sketcher.Constraint("Symmetric", 5, 2, 34, 2, -1, 1),
    Sketcher.Constraint("Symmetric", 0, 3, 26, 3, -2),
    Sketcher.Constraint("Symmetric", 7, 2, 18, 2, -2),
    Sketcher.Constraint("Symmetric", 5, 2, 20, 2, -2),
    Sketcher.Constraint("Symmetric", 3, 2, 22, 2, -2),
    Sketcher.Constraint("Symmetric", 1, 2, 24, 2, -2),
    Sketcher.Constraint("Horizontal", 26, 3, 7, 2),
    Sketcher.Constraint("Vertical", 11, 3, 0, 1),
    Sketcher.Constraint("Equal", 28, 1),
    Sketcher.Constraint("Equal", 31, 7),
    Sketcher.Constraint("DistanceX", 4, 1, 4, 2, Q("0.6 mm")),
    Sketcher.Constraint("DistanceY", 5, 1, 5, 2, Q("0.84 mm")),
    Sketcher.Constraint("Radius", 0, Q("0.15 mm")),
    Sketcher.Constraint("DistanceY", 1, 2, 0, 3, Q("0.25 mm")),
    Sketcher.Constraint("DistanceX", 5, 2, 20, 2, Q("1.88 mm")),
    Sketcher.Constraint("DistanceY", -1, 1, 1, 2, Q("1 mm")),
    Sketcher.Constraint("DistanceX", 2, 1, 2, 2, Q("0.06 mm")),
])
sketch3.setExpression("Constraints[90]", "Params.sketch3_width")
sketch3.setExpression("Constraints[91]", "Params.sketch3_height")
sketch3.setExpression("Constraints[92]", "Params.sketch3_radius")
sketch3.setExpression("Constraints[96]", "Params.sketch3_width2")
pad3 = body.newObject("PartDesign::Pad", "Pad002")
pad3.Profile = sketch3
pad3.setExpression("Length", "Params.pad3_length")

doc.recompute()
